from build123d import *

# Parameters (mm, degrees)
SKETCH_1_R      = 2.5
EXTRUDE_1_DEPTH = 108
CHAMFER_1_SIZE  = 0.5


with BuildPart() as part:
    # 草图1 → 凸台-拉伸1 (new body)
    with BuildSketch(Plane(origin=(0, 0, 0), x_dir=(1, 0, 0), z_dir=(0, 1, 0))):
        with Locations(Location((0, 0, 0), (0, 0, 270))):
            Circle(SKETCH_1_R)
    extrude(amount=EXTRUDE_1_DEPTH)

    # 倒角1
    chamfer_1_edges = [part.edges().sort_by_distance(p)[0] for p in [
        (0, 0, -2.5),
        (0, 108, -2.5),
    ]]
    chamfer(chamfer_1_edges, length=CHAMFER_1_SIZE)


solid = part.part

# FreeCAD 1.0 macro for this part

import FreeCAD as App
import Part
import Sketcher

V = App.Vector


def edges_at(feature, points):
    """Names of the edges that pass closest to the given points."""
    edges = feature.Shape.Edges
    near = lambda p: min(range(len(edges)), key=lambda i: edges[i].distToShape(Part.Vertex(*p))[0])
    return sorted({f"Edge{near(p) + 1}" for p in points})

doc = App.newDocument("Part")
body = doc.addObject("PartDesign::Body", "Body")

# Sketch on XZ plane
sketch1 = body.newObject("Sketcher::SketchObject", "Sketch")
sketch1.AttachmentSupport = (doc.getObject("XZ_Plane"), [""])
sketch1.MapMode = "FlatFace"
sketch1.addGeometry(Part.Circle(V(0, 0, 0), V(0, 0, 1), 2.5), False)
sketch1.addConstraint(Sketcher.Constraint("Coincident", 0, 3, -1, 1))
sketch1.addConstraint(Sketcher.Constraint("Diameter", 0, 5.0))
pad1 = body.newObject("PartDesign::Pad", "Pad")
pad1.Profile = sketch1
pad1.Length = 108
pad1.Reversed = True
doc.recompute()

chamfer = body.newObject("PartDesign::Chamfer", "Chamfer")
chamfer.Base = (pad1, edges_at(pad1, [(0, 0, -2.5), (0, 108, -2.5)]))
chamfer.Size = 0.5

doc.recompute()
